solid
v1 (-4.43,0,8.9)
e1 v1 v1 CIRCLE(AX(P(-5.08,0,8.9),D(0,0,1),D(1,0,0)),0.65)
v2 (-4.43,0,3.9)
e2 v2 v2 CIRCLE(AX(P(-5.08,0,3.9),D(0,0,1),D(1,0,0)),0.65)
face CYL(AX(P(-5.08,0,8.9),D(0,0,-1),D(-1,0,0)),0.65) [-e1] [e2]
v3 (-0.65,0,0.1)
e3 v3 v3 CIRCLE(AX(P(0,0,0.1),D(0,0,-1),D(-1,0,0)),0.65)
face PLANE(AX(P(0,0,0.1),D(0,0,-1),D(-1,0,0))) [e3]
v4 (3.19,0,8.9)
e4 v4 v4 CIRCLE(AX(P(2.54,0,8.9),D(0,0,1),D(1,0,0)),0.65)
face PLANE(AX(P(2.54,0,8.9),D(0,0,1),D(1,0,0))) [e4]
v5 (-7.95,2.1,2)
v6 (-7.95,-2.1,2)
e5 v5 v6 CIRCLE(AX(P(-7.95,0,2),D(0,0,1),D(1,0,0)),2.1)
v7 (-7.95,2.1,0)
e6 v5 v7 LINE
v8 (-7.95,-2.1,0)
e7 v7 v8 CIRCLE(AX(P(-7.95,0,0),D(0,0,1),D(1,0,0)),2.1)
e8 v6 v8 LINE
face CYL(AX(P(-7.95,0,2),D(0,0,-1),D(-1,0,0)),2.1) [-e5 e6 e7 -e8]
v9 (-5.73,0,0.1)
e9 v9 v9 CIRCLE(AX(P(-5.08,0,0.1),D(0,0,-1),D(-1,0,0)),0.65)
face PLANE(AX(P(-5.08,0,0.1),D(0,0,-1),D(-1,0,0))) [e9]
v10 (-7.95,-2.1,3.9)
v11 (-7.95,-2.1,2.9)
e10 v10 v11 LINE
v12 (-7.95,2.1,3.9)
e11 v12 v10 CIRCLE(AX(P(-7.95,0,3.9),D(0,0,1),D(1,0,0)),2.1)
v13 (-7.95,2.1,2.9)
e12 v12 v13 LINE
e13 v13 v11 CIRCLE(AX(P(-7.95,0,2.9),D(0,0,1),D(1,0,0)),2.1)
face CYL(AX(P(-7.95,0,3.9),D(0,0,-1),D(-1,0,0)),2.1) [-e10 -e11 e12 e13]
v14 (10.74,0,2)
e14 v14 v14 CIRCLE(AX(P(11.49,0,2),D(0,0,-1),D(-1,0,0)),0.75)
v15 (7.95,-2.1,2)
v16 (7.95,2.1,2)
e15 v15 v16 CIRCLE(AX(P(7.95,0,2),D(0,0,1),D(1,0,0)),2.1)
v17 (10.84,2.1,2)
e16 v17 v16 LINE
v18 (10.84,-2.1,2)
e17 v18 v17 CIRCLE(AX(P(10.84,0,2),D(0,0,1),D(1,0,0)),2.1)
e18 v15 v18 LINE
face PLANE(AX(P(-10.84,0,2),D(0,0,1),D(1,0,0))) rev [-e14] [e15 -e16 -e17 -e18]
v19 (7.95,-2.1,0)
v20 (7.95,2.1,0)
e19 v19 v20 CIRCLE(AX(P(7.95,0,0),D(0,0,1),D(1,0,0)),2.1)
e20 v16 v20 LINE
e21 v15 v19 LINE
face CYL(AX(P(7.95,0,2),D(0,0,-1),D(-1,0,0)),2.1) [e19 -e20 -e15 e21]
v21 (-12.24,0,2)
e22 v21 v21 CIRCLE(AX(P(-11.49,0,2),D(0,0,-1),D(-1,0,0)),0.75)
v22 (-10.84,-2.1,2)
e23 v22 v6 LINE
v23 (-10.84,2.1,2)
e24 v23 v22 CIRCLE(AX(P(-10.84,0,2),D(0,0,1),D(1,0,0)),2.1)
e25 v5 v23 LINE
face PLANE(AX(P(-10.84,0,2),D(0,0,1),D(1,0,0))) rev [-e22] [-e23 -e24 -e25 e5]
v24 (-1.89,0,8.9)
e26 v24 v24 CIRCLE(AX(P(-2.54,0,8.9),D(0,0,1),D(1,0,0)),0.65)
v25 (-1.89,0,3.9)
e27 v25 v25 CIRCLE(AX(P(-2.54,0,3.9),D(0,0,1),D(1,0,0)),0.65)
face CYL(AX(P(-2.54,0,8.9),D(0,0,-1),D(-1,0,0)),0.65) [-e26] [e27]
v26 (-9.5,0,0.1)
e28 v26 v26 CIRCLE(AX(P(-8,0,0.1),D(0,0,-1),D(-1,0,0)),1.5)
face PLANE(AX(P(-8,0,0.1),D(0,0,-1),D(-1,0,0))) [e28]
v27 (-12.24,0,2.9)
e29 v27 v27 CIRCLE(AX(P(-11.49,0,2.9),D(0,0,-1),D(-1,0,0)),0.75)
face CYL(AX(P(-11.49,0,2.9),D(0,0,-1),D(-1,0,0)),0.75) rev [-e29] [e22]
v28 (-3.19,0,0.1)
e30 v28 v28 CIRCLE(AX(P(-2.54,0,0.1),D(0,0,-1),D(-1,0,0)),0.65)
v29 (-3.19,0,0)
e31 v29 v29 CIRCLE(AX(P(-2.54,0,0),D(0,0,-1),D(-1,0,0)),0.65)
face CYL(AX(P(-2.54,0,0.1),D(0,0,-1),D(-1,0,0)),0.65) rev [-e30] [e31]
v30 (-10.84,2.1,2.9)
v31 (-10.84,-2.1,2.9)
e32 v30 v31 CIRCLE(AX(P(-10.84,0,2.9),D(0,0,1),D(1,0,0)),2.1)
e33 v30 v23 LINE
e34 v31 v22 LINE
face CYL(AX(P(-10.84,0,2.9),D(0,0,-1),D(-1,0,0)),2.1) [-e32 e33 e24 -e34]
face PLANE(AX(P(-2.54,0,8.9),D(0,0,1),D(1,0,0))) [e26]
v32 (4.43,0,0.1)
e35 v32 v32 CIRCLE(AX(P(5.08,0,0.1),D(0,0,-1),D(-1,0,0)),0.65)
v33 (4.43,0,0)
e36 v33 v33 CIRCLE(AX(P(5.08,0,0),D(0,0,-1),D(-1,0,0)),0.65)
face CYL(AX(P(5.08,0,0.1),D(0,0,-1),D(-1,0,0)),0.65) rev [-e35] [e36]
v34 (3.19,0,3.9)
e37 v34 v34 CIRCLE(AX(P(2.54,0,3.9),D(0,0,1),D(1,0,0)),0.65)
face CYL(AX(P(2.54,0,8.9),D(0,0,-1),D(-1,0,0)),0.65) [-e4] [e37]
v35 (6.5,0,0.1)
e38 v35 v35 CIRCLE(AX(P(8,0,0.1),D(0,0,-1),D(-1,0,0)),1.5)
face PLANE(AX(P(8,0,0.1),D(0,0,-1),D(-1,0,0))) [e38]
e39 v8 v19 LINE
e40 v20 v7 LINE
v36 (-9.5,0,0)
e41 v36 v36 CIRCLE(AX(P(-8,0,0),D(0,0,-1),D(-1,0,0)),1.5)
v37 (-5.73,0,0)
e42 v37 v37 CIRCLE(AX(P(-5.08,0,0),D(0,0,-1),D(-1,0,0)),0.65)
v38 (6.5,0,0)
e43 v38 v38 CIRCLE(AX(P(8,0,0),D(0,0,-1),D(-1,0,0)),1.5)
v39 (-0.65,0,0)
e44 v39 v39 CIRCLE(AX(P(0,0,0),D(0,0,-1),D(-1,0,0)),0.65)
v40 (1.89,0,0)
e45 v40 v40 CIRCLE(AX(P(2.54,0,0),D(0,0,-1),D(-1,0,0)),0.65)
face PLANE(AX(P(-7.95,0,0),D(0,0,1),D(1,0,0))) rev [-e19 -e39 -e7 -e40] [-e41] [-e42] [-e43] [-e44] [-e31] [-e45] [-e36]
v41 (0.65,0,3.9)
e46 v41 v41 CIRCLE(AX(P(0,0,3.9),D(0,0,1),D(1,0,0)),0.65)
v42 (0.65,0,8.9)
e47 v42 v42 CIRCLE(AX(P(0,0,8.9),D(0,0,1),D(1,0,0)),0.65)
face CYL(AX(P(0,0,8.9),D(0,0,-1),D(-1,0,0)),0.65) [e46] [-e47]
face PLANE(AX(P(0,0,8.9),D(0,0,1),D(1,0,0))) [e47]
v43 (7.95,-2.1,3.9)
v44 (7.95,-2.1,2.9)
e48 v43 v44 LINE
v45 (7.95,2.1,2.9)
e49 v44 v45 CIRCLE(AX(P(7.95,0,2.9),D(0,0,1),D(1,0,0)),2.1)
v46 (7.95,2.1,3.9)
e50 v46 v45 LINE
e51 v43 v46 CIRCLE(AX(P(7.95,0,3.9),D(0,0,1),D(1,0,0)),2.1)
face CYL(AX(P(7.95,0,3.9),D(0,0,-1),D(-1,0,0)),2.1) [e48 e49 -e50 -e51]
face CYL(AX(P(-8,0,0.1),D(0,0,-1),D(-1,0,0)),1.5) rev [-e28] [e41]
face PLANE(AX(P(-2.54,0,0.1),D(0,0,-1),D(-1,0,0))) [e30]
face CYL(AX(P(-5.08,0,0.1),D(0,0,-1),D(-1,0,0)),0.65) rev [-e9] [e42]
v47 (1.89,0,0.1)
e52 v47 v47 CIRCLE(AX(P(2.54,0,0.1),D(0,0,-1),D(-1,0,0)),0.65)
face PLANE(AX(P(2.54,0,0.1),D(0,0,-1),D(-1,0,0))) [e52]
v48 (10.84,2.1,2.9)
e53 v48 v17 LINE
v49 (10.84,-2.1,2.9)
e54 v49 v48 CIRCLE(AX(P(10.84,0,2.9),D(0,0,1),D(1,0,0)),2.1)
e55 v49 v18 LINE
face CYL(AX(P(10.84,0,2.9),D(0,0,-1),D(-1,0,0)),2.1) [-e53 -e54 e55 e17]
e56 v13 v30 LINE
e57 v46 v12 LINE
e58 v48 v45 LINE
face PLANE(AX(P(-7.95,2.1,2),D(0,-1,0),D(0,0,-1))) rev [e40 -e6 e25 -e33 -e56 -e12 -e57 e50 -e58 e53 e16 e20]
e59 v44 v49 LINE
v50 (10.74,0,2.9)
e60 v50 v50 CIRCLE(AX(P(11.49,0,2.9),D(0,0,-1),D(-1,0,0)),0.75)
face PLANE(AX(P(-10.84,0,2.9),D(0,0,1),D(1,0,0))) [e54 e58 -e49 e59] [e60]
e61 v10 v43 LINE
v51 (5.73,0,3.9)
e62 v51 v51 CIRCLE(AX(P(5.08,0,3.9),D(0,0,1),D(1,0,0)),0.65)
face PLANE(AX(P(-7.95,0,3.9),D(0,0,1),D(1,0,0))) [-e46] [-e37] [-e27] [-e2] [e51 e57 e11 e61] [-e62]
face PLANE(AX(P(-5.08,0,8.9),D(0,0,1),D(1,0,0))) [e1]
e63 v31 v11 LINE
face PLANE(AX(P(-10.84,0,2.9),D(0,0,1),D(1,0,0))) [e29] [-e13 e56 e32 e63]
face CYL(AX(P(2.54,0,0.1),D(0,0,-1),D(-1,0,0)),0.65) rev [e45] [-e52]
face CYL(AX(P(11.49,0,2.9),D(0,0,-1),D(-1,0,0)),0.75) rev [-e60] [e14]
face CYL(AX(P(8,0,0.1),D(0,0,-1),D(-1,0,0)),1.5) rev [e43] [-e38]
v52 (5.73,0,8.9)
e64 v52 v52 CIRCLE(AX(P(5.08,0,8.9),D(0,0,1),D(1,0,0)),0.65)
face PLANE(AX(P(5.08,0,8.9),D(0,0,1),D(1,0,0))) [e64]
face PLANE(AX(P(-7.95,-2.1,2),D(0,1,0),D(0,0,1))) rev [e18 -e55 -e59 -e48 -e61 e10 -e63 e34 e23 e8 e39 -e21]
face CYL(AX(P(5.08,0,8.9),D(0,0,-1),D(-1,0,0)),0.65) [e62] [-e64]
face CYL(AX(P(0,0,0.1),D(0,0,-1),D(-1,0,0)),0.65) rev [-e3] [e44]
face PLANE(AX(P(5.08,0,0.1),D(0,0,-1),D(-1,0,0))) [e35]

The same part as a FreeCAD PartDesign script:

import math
import FreeCAD as App
import Part
import Sketcher

doc = App.newDocument("Part")
body = doc.addObject("PartDesign::Body", "Body")

sketch1 = body.newObject("Sketcher::SketchObject", "Sketch")
sketch1.AttachmentSupport = (doc.getObject("XY_Plane"), [""])
sketch1.MapMode = "FlatFace"
sketch1.addGeometry(Part.LineSegment(App.Vector(8, 2.1, 0), App.Vector(-8, 2.1, 0)), False)
sketch1.addGeometry(Part.ArcOfCircle(Part.Circle(App.Vector(-8, 0, 0), App.Vector(0, 0, 1), 2.1), math.radians(90), math.radians(270)), False)
sketch1.addGeometry(Part.LineSegment(App.Vector(-8, -2.1, 0), App.Vector(8, -2.1, 0)), False)
sketch1.addGeometry(Part.ArcOfCircle(Part.Circle(App.Vector(8, 0, 0), App.Vector(0, 0, 1), 2.1), math.radians(-90), math.radians(90)), False)
sketch1.addConstraint(Sketcher.Constraint("Tangent", 0, 2, 1, 1))
sketch1.addConstraint(Sketcher.Constraint("Tangent", 1, 2, 2, 1))
sketch1.addConstraint(Sketcher.Constraint("Tangent", 2, 2, 3, 1))
sketch1.addConstraint(Sketcher.Constraint("Tangent", 3, 2, 0, 1))
sketch1.addConstraint(Sketcher.Constraint("Horizontal", 0))
sketch1.addConstraint(Sketcher.Constraint("Horizontal", 2))
sketch1.addConstraint(Sketcher.Constraint("Symmetric", 1, 3, 3, 3, -1, 1))
sketch1.addConstraint(Sketcher.Constraint("Radius", 1, 2.1))
sketch1.addConstraint(Sketcher.Constraint("DistanceX", 0, 2, 0, 1, 15.9))
pad1 = body.newObject("PartDesign::Pad", "Pad")
pad1.Profile = sketch1
pad1.Length = 2

sketch2 = body.newObject("Sketcher::SketchObject", "Sketch001")
sketch2.AttachmentSupport = (doc.getObject("XY_Plane"), [""])
sketch2.MapMode = "FlatFace"
sketch2.AttachmentOffset = App.Placement(App.Vector(0, 0, 2), App.Rotation())
sketch2.addGeometry(Part.LineSegment(App.Vector(10.8, 2.1, 0), App.Vector(-10.8, 2.1, 0)), False)
sketch2.addGeometry(Part.ArcOfCircle(Part.Circle(App.Vector(-10.8, 0, 0), App.Vector(0, 0, 1), 2.1), math.radians(90), math.radians(270)), False)
sketch2.addGeometry(Part.LineSegment(App.Vector(-10.8, -2.1, 0), App.Vector(10.8, -2.1, 0)), False)
sketch2.addGeometry(Part.ArcOfCircle(Part.Circle(App.Vector(10.8, 0, 0), App.Vector(0, 0, 1), 2.1), math.radians(-90), math.radians(90)), False)
sketch2.addConstraint(Sketcher.Constraint("Tangent", 0, 2, 1, 1))
sketch2.addConstraint(Sketcher.Constraint("Tangent", 1, 2, 2, 1))
sketch2.addConstraint(Sketcher.Constraint("Tangent", 2, 2, 3, 1))
sketch2.addConstraint(Sketcher.Constraint("Tangent", 3, 2, 0, 1))
sketch2.addConstraint(Sketcher.Constraint("Horizontal", 0))
sketch2.addConstraint(Sketcher.Constraint("Horizontal", 2))
sketch2.addConstraint(Sketcher.Constraint("Symmetric", 1, 3, 3, 3, -1, 1))
sketch2.addConstraint(Sketcher.Constraint("Radius", 1, 2.1))
sketch2.addConstraint(Sketcher.Constraint("DistanceX", 0, 2, 0, 1, 21.68))
pad2 = body.newObject("PartDesign::Pad", "Pad001")
pad2.Profile = sketch2
pad2.Length = 0.9

sketch3 = body.newObject("Sketcher::SketchObject", "Sketch002")
sketch3.AttachmentSupport = (doc.getObject("XY_Plane"), [""])
sketch3.MapMode = "FlatFace"
sketch3.AttachmentOffset = App.Placement(App.Vector(0, 0, 2), App.Rotation())
sketch3.addGeometry(Part.Circle(App.Vector(11.5, 0, 0), App.Vector(0, 0, 1), 0.8), False)
sketch3.addGeometry(Part.Circle(App.Vector(-11.5, 0, 0), App.Vector(0, 0, 1), 0.8), False)
sketch3.addConstraint(Sketcher.Constraint("Equal", 0, 1))
sketch3.addConstraint(Sketcher.Constraint("Symmetric", 0, 3, 1, 3, -1, 1))
sketch3.addConstraint(Sketcher.Constraint("PointOnObject", 0, 3, -1))
sketch3.addConstraint(Sketcher.Constraint("Diameter", 0, 1.5))
sketch3.addConstraint(Sketcher.Constraint("DistanceX", -1, 1, 0, 3, 11.49))
pocket1 = body.newObject("PartDesign::Pocket", "Pocket")
pocket1.Profile = sketch3
pocket1.Length = 0.9
pocket1.Reversed = True

sketch4 = body.newObject("Sketcher::SketchObject", "Sketch003")
sketch4.AttachmentSupport = (doc.getObject("XY_Plane"), [""])
sketch4.MapMode = "FlatFace"
sketch4.addGeometry(Part.Circle(App.Vector(0, 0, 0), App.Vector(0, 0, 1), 0.7), False)
sketch4.addGeometry(Part.Circle(App.Vector(-2.5, 0, 0), App.Vector(0, 0, 1), 0.7), False)
sketch4.addGeometry(Part.Circle(App.Vector(-5.1, 0, 0), App.Vector(0, 0, 1), 0.7), False)
sketch4.addGeometry(Part.Circle(App.Vector(2.5, 0, 0), App.Vector(0, 0, 1), 0.7), False)
sketch4.addGeometry(Part.Circle(App.Vector(5.1, 0, 0), App.Vector(0, 0, 1), 0.7), False)
sketch4.addGeometry(Part.Circle(App.Vector(8, 0, 0), App.Vector(0, 0, 1), 1.5), False)
sketch4.addGeometry(Part.Circle(App.Vector(-8, 0, 0), App.Vector(0, 0, 1), 1.5), False)
sketch4.addConstraint(Sketcher.Constraint("Coincident", 0, 3, -1, 1))
sketch4.addConstraint(Sketcher.Constraint("Equal", 0, 1))
sketch4.addConstraint(Sketcher.Constraint("Equal", 1, 2))
sketch4.addConstraint(Sketcher.Constraint("Equal", 2, 3))
sketch4.addConstraint(Sketcher.Constraint("Equal", 3, 4))
sketch4.addConstraint(Sketcher.Constraint("Equal", 5, 6))
sketch4.addConstraint(Sketcher.Constraint("Symmetric", 1, 3, 3, 3, -1, 1))
sketch4.addConstraint(Sketcher.Constraint("Symmetric", 2, 3, 4, 3, -1, 1))
sketch4.addConstraint(Sketcher.Constraint("Symmetric", 5, 3, 6, 3, -1, 1))
sketch4.addConstraint(Sketcher.Constraint("PointOnObject", 1, 3, -1))
sketch4.addConstraint(Sketcher.Constraint("PointOnObject", 2, 3, -1))
sketch4.addConstraint(Sketcher.Constraint("PointOnObject", 5, 3, -1))
sketch4.addConstraint(Sketcher.Constraint("Diameter", 5, 3.0))
sketch4.addConstraint(Sketcher.Constraint("Diameter", 0, 1.3))
sketch4.addConstraint(Sketcher.Constraint("DistanceX", -1, 1, 5, 3, 8.0))
sketch4.addConstraint(Sketcher.Constraint("DistanceX", 1, 3, -1, 1, 2.54))
sketch4.addConstraint(Sketcher.Constraint("DistanceX", 2, 3, -1, 1, 5.08))
pocket2 = body.newObject("PartDesign::Pocket", "Pocket001")
pocket2.Profile = sketch4
pocket2.Length = 0.1
pocket2.Reversed = True

sketch5 = body.newObject("Sketcher::SketchObject", "Sketch004")
sketch5.AttachmentSupport = (doc.getObject("XY_Plane"), [""])
sketch5.MapMode = "FlatFace"
sketch5.AttachmentOffset = App.Placement(App.Vector(0, 0, 2.9), App.Rotation())
sketch5.addGeometry(Part.LineSegment(App.Vector(8, 2.1, 0), App.Vector(-8, 2.1, 0)), False)
sketch5.addGeometry(Part.ArcOfCircle(Part.Circle(App.Vector(-8, 0, 0), App.Vector(0, 0, 1), 2.1), math.radians(90), math.radians(270)), False)
sketch5.addGeometry(Part.LineSegment(App.Vector(-8, -2.1, 0), App.Vector(8, -2.1, 0)), False)
sketch5.addGeometry(Part.ArcOfCircle(Part.Circle(App.Vector(8, 0, 0), App.Vector(0, 0, 1), 2.1), math.radians(-90), math.radians(90)), False)
sketch5.addConstraint(Sketcher.Constraint("Tangent", 0, 2, 1, 1))
sketch5.addConstraint(Sketcher.Constraint("Tangent", 1, 2, 2, 1))
sketch5.addConstraint(Sketcher.Constraint("Tangent", 2, 2, 3, 1))
sketch5.addConstraint(Sketcher.Constraint("Tangent", 3, 2, 0, 1))
sketch5.addConstraint(Sketcher.Constraint("Horizontal", 0))
sketch5.addConstraint(Sketcher.Constraint("Horizontal", 2))
sketch5.addConstraint(Sketcher.Constraint("Symmetric", 1, 3, 3, 3, -1, 1))
sketch5.addConstraint(Sketcher.Constraint("Radius", 1, 2.1))
sketch5.addConstraint(Sketcher.Constraint("DistanceX", 0, 2, 0, 1, 15.9))
pad3 = body.newObject("PartDesign::Pad", "Pad002")
pad3.Profile = sketch5
pad3.Length = 1

sketch6 = body.newObject("Sketcher::SketchObject", "Sketch005")
sketch6.AttachmentSupport = (doc.getObject("XY_Plane"), [""])
sketch6.MapMode = "FlatFace"
sketch6.AttachmentOffset = App.Placement(App.Vector(0, 0, 3.9), App.Rotation())
sketch6.addGeometry(Part.Circle(App.Vector(-5.1, 0, 0), App.Vector(0, 0, 1), 0.7), False)
sketch6.addGeometry(Part.Circle(App.Vector(-2.5, 0, 0), App.Vector(0, 0, 1), 0.7), False)
sketch6.addGeometry(Part.Circle(App.Vector(0, 0, 0), App.Vector(0, 0, 1), 0.7), False)
sketch6.addGeometry(Part.Circle(App.Vector(2.5, 0, 0), App.Vector(0, 0, 1), 0.7), False)
sketch6.addGeometry(Part.Circle(App.Vector(5.1, 0, 0), App.Vector(0, 0, 1), 0.7), False)
sketch6.addConstraint(Sketcher.Constraint("Coincident", 2, 3, -1, 1))
sketch6.addConstraint(Sketcher.Constraint("Equal", 0, 1))
sketch6.addConstraint(Sketcher.Constraint("Equal", 1, 2))
sketch6.addConstraint(Sketcher.Constraint("Equal", 2, 3))
sketch6.addConstraint(Sketcher.Constraint("Equal", 3, 4))
sketch6.addConstraint(Sketcher.Constraint("Symmetric", 1, 3, 3, 3, -1, 1))
sketch6.addConstraint(Sketcher.Constraint("Symmetric", 0, 3, 4, 3, -1, 1))
sketch6.addConstraint(Sketcher.Constraint("PointOnObject", 0, 3, -1))
sketch6.addConstraint(Sketcher.Constraint("PointOnObject", 1, 3, -1))
sketch6.addConstraint(Sketcher.Constraint("Diameter", 0, 1.3))
sketch6.addConstraint(Sketcher.Constraint("DistanceX", 0, 3, -1, 1, 5.08))
sketch6.addConstraint(Sketcher.Constraint("DistanceX", 1, 3, -1, 1, 2.54))
pad4 = body.newObject("PartDesign::Pad", "Pad003")
pad4.Profile = sketch6
pad4.Length = 5

doc.recompute()
